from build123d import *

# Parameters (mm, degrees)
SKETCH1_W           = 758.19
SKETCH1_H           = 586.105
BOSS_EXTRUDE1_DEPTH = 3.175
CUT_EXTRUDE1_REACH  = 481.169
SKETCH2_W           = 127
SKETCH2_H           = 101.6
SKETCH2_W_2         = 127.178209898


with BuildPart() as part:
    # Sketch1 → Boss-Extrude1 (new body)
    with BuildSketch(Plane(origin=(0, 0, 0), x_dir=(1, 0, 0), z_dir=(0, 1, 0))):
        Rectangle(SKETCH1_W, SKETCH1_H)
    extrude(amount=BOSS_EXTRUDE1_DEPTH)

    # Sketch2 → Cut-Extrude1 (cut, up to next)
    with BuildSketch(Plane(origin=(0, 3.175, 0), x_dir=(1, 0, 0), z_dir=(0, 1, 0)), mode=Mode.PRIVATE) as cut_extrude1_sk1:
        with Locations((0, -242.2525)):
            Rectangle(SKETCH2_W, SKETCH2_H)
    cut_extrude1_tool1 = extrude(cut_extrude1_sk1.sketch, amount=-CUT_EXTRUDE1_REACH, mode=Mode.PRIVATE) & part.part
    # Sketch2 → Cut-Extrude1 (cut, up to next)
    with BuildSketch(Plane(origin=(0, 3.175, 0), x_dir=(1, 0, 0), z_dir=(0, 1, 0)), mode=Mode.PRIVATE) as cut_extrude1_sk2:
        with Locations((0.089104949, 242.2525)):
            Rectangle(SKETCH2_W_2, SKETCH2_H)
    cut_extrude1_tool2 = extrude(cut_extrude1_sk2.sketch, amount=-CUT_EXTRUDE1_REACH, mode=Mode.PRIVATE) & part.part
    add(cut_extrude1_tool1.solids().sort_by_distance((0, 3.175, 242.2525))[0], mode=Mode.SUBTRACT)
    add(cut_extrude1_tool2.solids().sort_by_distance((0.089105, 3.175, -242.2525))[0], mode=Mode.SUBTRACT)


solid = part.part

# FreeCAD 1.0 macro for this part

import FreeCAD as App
import Part
import Sketcher
from FreeCAD import Vector
Q = App.Units.Quantity

doc = App.newDocument("Part")
body = doc.addObject("PartDesign::Body", "Body")

sketch1 = body.newObject("Sketcher::SketchObject", "Sketch")
sketch1.AttachmentSupport = (doc.getObject("XZ_Plane"), [""])
sketch1.MapMode = "FlatFace"
sketch1.addGeometry(Part.LineSegment(Vector(-379.095, -293.0525, 0), Vector(-379.095, 293.0525, 0)), False)
sketch1.addGeometry(Part.LineSegment(Vector(-379.095, 293.0525, 0), Vector(379.095, 293.0525, 0)), False)
sketch1.addGeometry(Part.LineSegment(Vector(379.095, 293.0525, 0), Vector(379.095, -293.0525, 0)), False)
sketch1.addGeometry(Part.LineSegment(Vector(379.095, -293.0525, 0), Vector(-379.095, -293.0525, 0)), False)
sketch1.addConstraint(Sketcher.Constraint("Coincident", 0, 2, 1, 1))
sketch1.addConstraint(Sketcher.Constraint("Coincident", 1, 2, 2, 1))
sketch1.addConstraint(Sketcher.Constraint("Coincident", 2, 2, 3, 1))
sketch1.addConstraint(Sketcher.Constraint("Coincident", 3, 2, 0, 1))
sketch1.addConstraint(Sketcher.Constraint("Vertical", 0))
sketch1.addConstraint(Sketcher.Constraint("Horizontal", 1))
sketch1.addConstraint(Sketcher.Constraint("Vertical", 2))
sketch1.addConstraint(Sketcher.Constraint("Horizontal", 3))
sketch1.addConstraint(Sketcher.Constraint("Symmetric", 0, 2, 2, 2, -1, 1))
sketch1.addConstraint(Sketcher.Constraint("DistanceX", 1, 1, 1, 2, Q("29.85 in")))
sketch1.addConstraint(Sketcher.Constraint("DistanceY", 0, 1, 0, 2, Q("23.075 in")))
pad1 = body.newObject("PartDesign::Pad", "Pad")
pad1.Profile = sketch1
pad1.Length = Q("0.125 in")
pad1.Reversed = True

sketch2 = body.newObject("Sketcher::SketchObject", "Sketch001")
sketch2.AttachmentSupport = (doc.getObject("XZ_Plane"), [""])
sketch2.MapMode = "FlatFace"
sketch2.AttachmentOffset = App.Placement(Vector(0, 0, -0.125 * 25.4), App.Rotation())
sketch2.addGeometry(Part.LineSegment(Vector(-63.5, 191.4525, 0), Vector(-63.5, 293.0525, 0)), False)
sketch2.addGeometry(Part.LineSegment(Vector(-63.5, 293.0525, 0), Vector(63.5, 293.0525, 0)), False)
sketch2.addGeometry(Part.LineSegment(Vector(63.5, 293.0525, 0), Vector(63.5, 191.4525, 0)), False)
sketch2.addGeometry(Part.LineSegment(Vector(63.5, 191.4525, 0), Vector(-63.5, 191.4525, 0)), False)
sketch2.addConstraint(Sketcher.Constraint("Coincident", 0, 2, 1, 1))
sketch2.addConstraint(Sketcher.Constraint("Coincident", 1, 2, 2, 1))
sketch2.addConstraint(Sketcher.Constraint("Coincident", 2, 2, 3, 1))
sketch2.addConstraint(Sketcher.Constraint("Coincident", 3, 2, 0, 1))
sketch2.addConstraint(Sketcher.Constraint("Vertical", 0))
sketch2.addConstraint(Sketcher.Constraint("Horizontal", 1))
sketch2.addConstraint(Sketcher.Constraint("Vertical", 2))
sketch2.addConstraint(Sketcher.Constraint("Horizontal", 3))
sketch2.addConstraint(Sketcher.Constraint("DistanceX", 1, 1, 1, 2, Q("5 in")))
sketch2.addConstraint(Sketcher.Constraint("DistanceY", 0, 1, 0, 2, Q("4 in")))
sketch2.addConstraint(Sketcher.Constraint("DistanceX", 0, 2, -1, 1, Q("2.5 in")))
sketch2.addConstraint(Sketcher.Constraint("DistanceY", -1, 1, 0, 2, Q("11.5375 in")))
pocket1 = body.newObject("PartDesign::Pocket", "Pocket")
pocket1.Profile = sketch2
pocket1.Type = "UpToFirst"
pocket1.Reversed = True

sketch3 = body.newObject("Sketcher::SketchObject", "Sketch002")
sketch3.AttachmentSupport = (doc.getObject("XZ_Plane"), [""])
sketch3.MapMode = "FlatFace"
sketch3.AttachmentOffset = App.Placement(Vector(0, 0, -0.125 * 25.4), App.Rotation())
sketch3.addGeometry(Part.LineSegment(Vector(-63.5, -293.0525, 0), Vector(-63.5, -191.4525, 0)), False)
sketch3.addGeometry(Part.LineSegment(Vector(-63.5, -191.4525, 0), Vector(63.67821, -191.4525, 0)), False)
sketch3.addGeometry(Part.LineSegment(Vector(63.67821, -191.4525, 0), Vector(63.67821, -293.0525, 0)), False)
sketch3.addGeometry(Part.LineSegment(Vector(63.67821, -293.0525, 0), Vector(-63.5, -293.0525, 0)), False)
sketch3.addConstraint(Sketcher.Constraint("Coincident", 0, 2, 1, 1))
sketch3.addConstraint(Sketcher.Constraint("Coincident", 1, 2, 2, 1))
sketch3.addConstraint(Sketcher.Constraint("Coincident", 2, 2, 3, 1))
sketch3.addConstraint(Sketcher.Constraint("Coincident", 3, 2, 0, 1))
sketch3.addConstraint(Sketcher.Constraint("Vertical", 0))
sketch3.addConstraint(Sketcher.Constraint("Horizontal", 1))
sketch3.addConstraint(Sketcher.Constraint("Vertical", 2))
sketch3.addConstraint(Sketcher.Constraint("Horizontal", 3))
sketch3.addConstraint(Sketcher.Constraint("DistanceY", 0, 1, 0, 2, Q("4 in")))
sketch3.addConstraint(Sketcher.Constraint("DistanceX", 0, 2, -1, 1, Q("2.5 in")))
sketch3.addConstraint(Sketcher.Constraint("DistanceY", 0, 2, -1, 1, Q("7.5375 in")))
sketch3.addConstraint(Sketcher.Constraint("DistanceX", 1, 1, 1, 2, 127.17821))
pocket2 = body.newObject("PartDesign::Pocket", "Pocket001")
pocket2.Profile = sketch3
pocket2.Type = "UpToFirst"
pocket2.Reversed = True

doc.recompute()
